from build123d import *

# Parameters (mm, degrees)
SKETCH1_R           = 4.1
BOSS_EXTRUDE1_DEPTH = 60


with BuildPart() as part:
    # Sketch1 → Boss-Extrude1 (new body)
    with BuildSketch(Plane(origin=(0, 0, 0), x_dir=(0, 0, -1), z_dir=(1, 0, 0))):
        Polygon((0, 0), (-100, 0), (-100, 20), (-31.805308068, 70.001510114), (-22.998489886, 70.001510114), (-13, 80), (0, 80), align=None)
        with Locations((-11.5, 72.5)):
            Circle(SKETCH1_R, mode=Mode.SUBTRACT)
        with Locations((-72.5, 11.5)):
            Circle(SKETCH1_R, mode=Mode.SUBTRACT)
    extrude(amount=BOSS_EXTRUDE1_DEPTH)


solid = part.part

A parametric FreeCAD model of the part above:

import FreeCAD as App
import Part
import Sketcher
Q = App.Units.Quantity


def add_polygon(sketch, points):
    """Adds a closed chain of lines whose ends are joined by coincident constraints."""
    first, n = sketch.GeometryCount, len(points)
    for a, b in zip(points, points[1:] + points[:1]):
        sketch.addGeometry(Part.LineSegment(App.Vector(*a, 0), App.Vector(*b, 0)), False)
    for i in range(n):
        sketch.addConstraint(Sketcher.Constraint("Coincident", first + i, 2, first + (i + 1) % n, 1))

doc = App.newDocument("Part")
params = doc.addObject("Spreadsheet::Sheet", "Params")
for row, (alias, value) in enumerate([
    ("sketch1_diameter", "8.2 mm"),
    ("sketch1_width", "80 mm"),
    ("sketch1_width2", "20 mm"),
    ("sketch1_height", "100 mm"),
    ("sketch1_height2", "13 mm"),
    ("pad1_length", "60 mm"),
], start=1):
    params.set(f"A{row}", alias)
    params.set(f"B{row}", "=" + value)
    params.setAlias(f"B{row}", alias)

body = doc.addObject("PartDesign::Body", "Body")

# Sketch on YZ plane
sketch1 = doc.addObject("Sketcher::SketchObject", "Sketch")
body.addObject(sketch1)
sketch1.AttachmentSupport = (doc.YZ_Plane, [""])
sketch1.MapMode = "FlatFace"
add_polygon(sketch1, [(0, 100), (0, 0), (80, 0), (80, 13), (70, 23), (70, 31.8), (20, 100)])  # lines 0-6
sketch1.addGeometry(Part.Circle(App.Vector(11.5, 72.5, 0), App.Vector(0, 0, 1), 4.1), False)  # 7
sketch1.addGeometry(Part.Circle(App.Vector(72.5, 11.5, 0), App.Vector(0, 0, 1), 4.1), False)  # 8
sketch1.addConstraint([
    Sketcher.Constraint("Vertical", 0),
    Sketcher.Constraint("Horizontal", 1),
    Sketcher.Constraint("Vertical", 2),
    Sketcher.Constraint("Vertical", 4),
    Sketcher.Constraint("Horizontal", 6),
    Sketcher.Constraint("Coincident", 0, 2, -1, 1),
    Sketcher.Constraint("Equal", 7, 8),
    Sketcher.Constraint("Diameter", 7, Q("8.2 mm")),
    Sketcher.Constraint("DistanceX", 1, 1, 1, 2, Q("80 mm")),
    Sketcher.Constraint("DistanceX", 6, 2, 6, 1, Q("20 mm")),
    Sketcher.Constraint("DistanceY", 0, 2, 0, 1, Q("100 mm")),
    Sketcher.Constraint("DistanceY", 2, 1, 2, 2, Q("13 mm")),
    Sketcher.Constraint("Angle", 3, Q("135 deg")),
    Sketcher.Constraint("DistanceX", 7, 3, 8, 3, Q("61 mm")),
    Sketcher.Constraint("DistanceY", 8, 3, 7, 3, Q("61 mm")),
    Sketcher.Constraint("DistanceX", -1, 1, 7, 3, Q("11.5 mm")),
    Sketcher.Constraint("DistanceY", -1, 1, 7, 3, Q("72.5 mm")),
    Sketcher.Constraint("Distance", 3, Q("14.14 mm")),
    Sketcher.Constraint("DistanceY", 4, 1, 4, 2, Q("8.806818 mm")),
])
sketch1.setExpression("Constraints[14]", "Params.sketch1_diameter")
sketch1.setExpression("Constraints[15]", "Params.sketch1_width")
sketch1.setExpression("Constraints[16]", "Params.sketch1_width2")
sketch1.setExpression("Constraints[17]", "Params.sketch1_height")
sketch1.setExpression("Constraints[18]", "Params.sketch1_height2")
pad1 = doc.addObject("PartDesign::Pad", "Pad")
body.addObject(pad1)
pad1.Profile = sketch1
pad1.setExpression("Length", "Params.pad1_length")

doc.recompute()
